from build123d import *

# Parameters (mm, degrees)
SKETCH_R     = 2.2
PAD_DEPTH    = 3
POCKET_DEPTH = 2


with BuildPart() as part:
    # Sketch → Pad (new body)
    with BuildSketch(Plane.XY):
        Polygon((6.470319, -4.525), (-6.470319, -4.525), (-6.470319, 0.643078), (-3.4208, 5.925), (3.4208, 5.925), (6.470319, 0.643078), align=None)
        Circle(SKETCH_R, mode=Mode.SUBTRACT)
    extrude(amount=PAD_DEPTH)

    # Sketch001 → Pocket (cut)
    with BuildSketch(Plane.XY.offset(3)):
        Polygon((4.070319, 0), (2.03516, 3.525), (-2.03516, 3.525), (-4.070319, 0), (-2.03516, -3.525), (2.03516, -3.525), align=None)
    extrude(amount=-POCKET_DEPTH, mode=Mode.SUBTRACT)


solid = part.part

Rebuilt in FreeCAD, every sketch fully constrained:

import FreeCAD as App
import Part
import Sketcher
Q = App.Units.Quantity


def add_polygon(sketch, points):
    """Adds a closed chain of lines whose ends are joined by coincident constraints."""
    first, n = sketch.GeometryCount, len(points)
    for a, b in zip(points, points[1:] + points[:1]):
        sketch.addGeometry(Part.LineSegment(App.Vector(*a, 0), App.Vector(*b, 0)), False)
    for i in range(n):
        sketch.addConstraint(Sketcher.Constraint("Coincident", first + i, 2, first + (i + 1) % n, 1))

doc = App.newDocument("Part")
params = doc.addObject("Spreadsheet::Sheet", "Params")
for row, (alias, value) in enumerate([
    ("sketch1_diameter", "4.4 mm"),
    ("pad1_length", "3 mm"),
    ("pocket1_length", "2 mm"),
], start=1):
    params.set(f"A{row}", alias)
    params.set(f"B{row}", "=" + value)
    params.setAlias(f"B{row}", alias)

body = doc.addObject("PartDesign::Body", "Body")

# Sketch on XY plane
sketch1 = doc.addObject("Sketcher::SketchObject", "Sketch")
body.addObject(sketch1)
sketch1.AttachmentSupport = (doc.XY_Plane, [""])
sketch1.MapMode = "FlatFace"
add_polygon(sketch1, [(-6.5, -4.5), (6.5, -4.5), (6.5, 0.6), (3.4, 5.9), (-3.4, 5.9), (-6.5, 0.6)])  # lines 0-5
sketch1.addGeometry(Part.Circle(App.Vector(0, 0, 0), App.Vector(0, 0, 1), 2.2), False)  # 6
sketch1.addConstraint([
    Sketcher.Constraint("Horizontal", 0),
    Sketcher.Constraint("Vertical", 1),
    Sketcher.Constraint("Horizontal", 3),
    Sketcher.Constraint("Vertical", 5),
    Sketcher.Constraint("Coincident", 6, 3, -1, 1),
    Sketcher.Constraint("Symmetric", 1, 2, 4, 2, -2),
    Sketcher.Constraint("Equal", 2, 4),
    Sketcher.Constraint("Diameter", 6, Q("4.4 mm")),
    Sketcher.Constraint("Angle", 2, Q("119.999999 deg")),
    Sketcher.Constraint("DistanceY", 0, 2, 2, 2, Q("10.45 mm")),
    Sketcher.Constraint("DistanceX", 3, 2, 3, 1, Q("6.8416 mm")),
    Sketcher.Constraint("DistanceY", 0, 2, -1, 1, Q("4.525 mm")),
    Sketcher.Constraint("DistanceY", 1, 1, 1, 2, Q("5.168078 mm")),
])
sketch1.setExpression("Constraints[13]", "Params.sketch1_diameter")
pad1 = doc.addObject("PartDesign::Pad", "Pad")
body.addObject(pad1)
pad1.Profile = sketch1
pad1.setExpression("Length", "Params.pad1_length")

# Sketch on XY plane
sketch2 = doc.addObject("Sketcher::SketchObject", "Sketch001")
body.addObject(sketch2)
sketch2.AttachmentSupport = (doc.XY_Plane, [""])
sketch2.MapMode = "FlatFace"
sketch2.AttachmentOffset = App.Placement(App.Vector(0, 0, 3), App.Rotation())
add_polygon(sketch2, [(4.1, 0), (2, 3.5), (-2, 3.5), (-4.1, 0), (-2, -3.5), (2, -3.5)])  # lines 0-5
sketch2.addConstraint([
    Sketcher.Constraint("Horizontal", 1),
    Sketcher.Constraint("Horizontal", 4),
    Sketcher.Constraint("Symmetric", 0, 2, 3, 2, -1, 1),
    Sketcher.Constraint("Symmetric", 2, 2, 5, 2, -1, 1),
    Sketcher.Constraint("PointOnObject", 2, 2, -1),
    Sketcher.Constraint("Parallel", 2, 5),
    Sketcher.Constraint("Vertical", 1, 2, 3, 2),
    Sketcher.Constraint("Angle", 0, Q("119.999991 deg")),
    Sketcher.Constraint("DistanceY", 3, 2, 1, 2, Q("7.05 mm")),
    Sketcher.Constraint("DistanceX", 1, 2, 1, 1, Q("4.07032 mm")),
])
pocket1 = doc.addObject("PartDesign::Pocket", "Pocket")
body.addObject(pocket1)
pocket1.Profile = sketch2
pocket1.setExpression("Length", "Params.pocket1_length")

doc.recompute()
